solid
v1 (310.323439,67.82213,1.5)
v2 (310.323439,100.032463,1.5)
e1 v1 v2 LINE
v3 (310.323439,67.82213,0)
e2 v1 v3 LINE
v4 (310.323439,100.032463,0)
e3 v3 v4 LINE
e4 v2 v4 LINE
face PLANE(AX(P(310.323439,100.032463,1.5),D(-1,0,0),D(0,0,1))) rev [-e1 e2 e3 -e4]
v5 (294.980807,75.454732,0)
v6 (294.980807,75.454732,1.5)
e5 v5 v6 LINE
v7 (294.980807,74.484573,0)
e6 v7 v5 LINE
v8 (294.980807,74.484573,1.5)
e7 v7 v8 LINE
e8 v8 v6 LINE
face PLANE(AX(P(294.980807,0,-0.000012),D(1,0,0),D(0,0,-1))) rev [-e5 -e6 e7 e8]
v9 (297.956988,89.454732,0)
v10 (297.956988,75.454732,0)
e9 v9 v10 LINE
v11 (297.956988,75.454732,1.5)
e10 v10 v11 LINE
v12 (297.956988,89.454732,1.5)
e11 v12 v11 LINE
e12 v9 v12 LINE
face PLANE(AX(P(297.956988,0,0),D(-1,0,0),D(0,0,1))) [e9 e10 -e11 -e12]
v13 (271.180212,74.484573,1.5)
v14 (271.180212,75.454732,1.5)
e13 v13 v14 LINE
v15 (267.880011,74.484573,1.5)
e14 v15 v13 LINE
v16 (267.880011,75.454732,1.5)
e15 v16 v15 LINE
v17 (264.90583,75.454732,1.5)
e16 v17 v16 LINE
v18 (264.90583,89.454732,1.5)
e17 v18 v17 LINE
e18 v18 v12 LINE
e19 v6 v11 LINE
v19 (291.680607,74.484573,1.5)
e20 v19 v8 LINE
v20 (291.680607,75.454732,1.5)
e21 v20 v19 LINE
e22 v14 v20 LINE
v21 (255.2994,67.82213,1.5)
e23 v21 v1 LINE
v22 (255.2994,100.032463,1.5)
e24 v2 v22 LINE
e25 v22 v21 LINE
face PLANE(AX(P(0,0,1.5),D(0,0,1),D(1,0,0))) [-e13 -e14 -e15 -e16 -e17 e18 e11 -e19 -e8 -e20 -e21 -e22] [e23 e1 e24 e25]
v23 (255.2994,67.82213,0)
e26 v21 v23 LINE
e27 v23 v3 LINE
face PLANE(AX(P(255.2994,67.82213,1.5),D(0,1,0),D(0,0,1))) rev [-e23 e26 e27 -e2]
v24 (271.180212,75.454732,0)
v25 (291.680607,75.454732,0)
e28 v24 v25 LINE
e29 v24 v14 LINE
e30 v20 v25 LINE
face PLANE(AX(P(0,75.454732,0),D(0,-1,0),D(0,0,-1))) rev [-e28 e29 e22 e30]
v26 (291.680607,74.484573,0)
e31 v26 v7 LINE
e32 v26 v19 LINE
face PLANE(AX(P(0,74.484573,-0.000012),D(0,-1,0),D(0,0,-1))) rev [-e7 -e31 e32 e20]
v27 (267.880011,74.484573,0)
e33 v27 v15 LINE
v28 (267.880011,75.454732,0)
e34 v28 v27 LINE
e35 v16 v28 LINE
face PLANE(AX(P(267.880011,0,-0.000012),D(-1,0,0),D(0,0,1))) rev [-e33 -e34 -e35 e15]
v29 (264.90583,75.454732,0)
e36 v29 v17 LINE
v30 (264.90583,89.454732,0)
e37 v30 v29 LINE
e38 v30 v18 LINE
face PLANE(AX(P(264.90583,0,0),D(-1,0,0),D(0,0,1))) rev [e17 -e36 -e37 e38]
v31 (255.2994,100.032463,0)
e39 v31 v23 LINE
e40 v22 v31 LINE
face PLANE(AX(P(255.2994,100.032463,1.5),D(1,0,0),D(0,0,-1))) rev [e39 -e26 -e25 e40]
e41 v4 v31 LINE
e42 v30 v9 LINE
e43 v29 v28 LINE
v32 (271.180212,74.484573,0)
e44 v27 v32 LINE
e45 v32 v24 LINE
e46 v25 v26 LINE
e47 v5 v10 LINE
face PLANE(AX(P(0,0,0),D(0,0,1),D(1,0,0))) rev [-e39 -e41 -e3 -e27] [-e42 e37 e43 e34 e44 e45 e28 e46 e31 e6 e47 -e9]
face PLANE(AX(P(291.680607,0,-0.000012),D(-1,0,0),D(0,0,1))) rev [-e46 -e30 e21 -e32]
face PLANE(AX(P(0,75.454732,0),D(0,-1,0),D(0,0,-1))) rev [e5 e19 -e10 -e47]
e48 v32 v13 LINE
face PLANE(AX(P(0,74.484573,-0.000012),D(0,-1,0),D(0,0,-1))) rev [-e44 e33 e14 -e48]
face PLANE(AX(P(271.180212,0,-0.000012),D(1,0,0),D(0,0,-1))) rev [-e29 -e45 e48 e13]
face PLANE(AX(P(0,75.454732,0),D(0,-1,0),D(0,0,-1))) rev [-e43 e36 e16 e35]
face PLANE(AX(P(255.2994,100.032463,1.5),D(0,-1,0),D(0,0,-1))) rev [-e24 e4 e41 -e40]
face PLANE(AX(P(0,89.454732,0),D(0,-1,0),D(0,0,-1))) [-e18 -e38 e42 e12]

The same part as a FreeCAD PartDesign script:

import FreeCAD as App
import Part
import Sketcher

doc = App.newDocument("Part")
params = doc.addObject("Spreadsheet::Sheet", "Params")
for row, (alias, value) in enumerate([
    ("pad1_length", "1.5 mm"),
    ("sketch2_width", "14 mm"),
    ("pocket1_length", "1.5 mm"),
    ("sketch3_width", "14 mm"),
], start=1):
    params.set(f"A{row}", alias)
    params.set(f"B{row}", "=" + value)
    params.setAlias(f"B{row}", alias)

body = doc.addObject("PartDesign::Body", "Body")

sketch1 = body.newObject("Sketcher::SketchObject", "Sketch")
sketch1.AttachmentSupport = (doc.getObject("XY_Plane"), [""])
sketch1.MapMode = "FlatFace"
sketch1.addGeometry(Part.LineSegment(App.Vector(255, 100, 0), App.Vector(255, 68, 0)), False)
sketch1.addGeometry(Part.LineSegment(App.Vector(255, 68, 0), App.Vector(310, 68, 0)), False)
sketch1.addGeometry(Part.LineSegment(App.Vector(310, 68, 0), App.Vector(310, 100, 0)), False)
sketch1.addGeometry(Part.LineSegment(App.Vector(310, 100, 0), App.Vector(255, 100, 0)), False)
sketch1.addConstraint(Sketcher.Constraint("Coincident", 0, 2, 1, 1))
sketch1.addConstraint(Sketcher.Constraint("Coincident", 1, 2, 2, 1))
sketch1.addConstraint(Sketcher.Constraint("Coincident", 2, 2, 3, 1))
sketch1.addConstraint(Sketcher.Constraint("Coincident", 3, 2, 0, 1))
sketch1.addConstraint(Sketcher.Constraint("Vertical", 0))
sketch1.addConstraint(Sketcher.Constraint("Horizontal", 1))
sketch1.addConstraint(Sketcher.Constraint("Vertical", 2))
sketch1.addConstraint(Sketcher.Constraint("Horizontal", 3))
sketch1.addConstraint(Sketcher.Constraint("DistanceX", 1, 1, 1, 2, 55.024039))
sketch1.addConstraint(Sketcher.Constraint("DistanceX", -1, 1, 0, 2, 255.2994))
sketch1.addConstraint(Sketcher.Constraint("DistanceY", 0, 2, 0, 1, 32.210334))
sketch1.addConstraint(Sketcher.Constraint("DistanceY", -1, 1, 0, 2, 67.82213))
pad1 = body.newObject("PartDesign::Pad", "Pad")
pad1.Profile = sketch1
pad1.setExpression("Length", "Params.pad1_length")

sketch2 = body.newObject("Sketcher::SketchObject", "Sketch001")
sketch2.AttachmentSupport = (doc.getObject("XY_Plane"), [""])
sketch2.MapMode = "FlatFace"
sketch2.AttachmentOffset = App.Placement(App.Vector(0, 0, 1.5), App.Rotation())
sketch2.addGeometry(Part.LineSegment(App.Vector(265, 89, 0), App.Vector(265, 75, 0)), False)
sketch2.addGeometry(Part.LineSegment(App.Vector(265, 75, 0), App.Vector(279, 75, 0)), False)
sketch2.addGeometry(Part.LineSegment(App.Vector(279, 75, 0), App.Vector(279, 89, 0)), False)
sketch2.addGeometry(Part.LineSegment(App.Vector(279, 89, 0), App.Vector(265, 89, 0)), False)
sketch2.addGeometry(Part.LineSegment(App.Vector(284, 89, 0), App.Vector(284, 75, 0)), False)
sketch2.addGeometry(Part.LineSegment(App.Vector(284, 75, 0), App.Vector(298, 75, 0)), False)
sketch2.addGeometry(Part.LineSegment(App.Vector(298, 75, 0), App.Vector(298, 89, 0)), False)
sketch2.addGeometry(Part.LineSegment(App.Vector(298, 89, 0), App.Vector(284, 89, 0)), False)
sketch2.addConstraint(Sketcher.Constraint("Coincident", 0, 2, 1, 1))
sketch2.addConstraint(Sketcher.Constraint("Coincident", 1, 2, 2, 1))
sketch2.addConstraint(Sketcher.Constraint("Coincident", 2, 2, 3, 1))
sketch2.addConstraint(Sketcher.Constraint("Coincident", 3, 2, 0, 1))
sketch2.addConstraint(Sketcher.Constraint("Coincident", 4, 2, 5, 1))
sketch2.addConstraint(Sketcher.Constraint("Coincident", 5, 2, 6, 1))
sketch2.addConstraint(Sketcher.Constraint("Coincident", 6, 2, 7, 1))
sketch2.addConstraint(Sketcher.Constraint("Coincident", 7, 2, 4, 1))
sketch2.addConstraint(Sketcher.Constraint("Vertical", 0))
sketch2.addConstraint(Sketcher.Constraint("Horizontal", 1))
sketch2.addConstraint(Sketcher.Constraint("Vertical", 2))
sketch2.addConstraint(Sketcher.Constraint("Horizontal", 3))
sketch2.addConstraint(Sketcher.Constraint("Vertical", 4))
sketch2.addConstraint(Sketcher.Constraint("Horizontal", 5))
sketch2.addConstraint(Sketcher.Constraint("Vertical", 6))
sketch2.addConstraint(Sketcher.Constraint("Horizontal", 7))
sketch2.addConstraint(Sketcher.Constraint("Horizontal", 1, 2, 4, 2))
sketch2.addConstraint(Sketcher.Constraint("Horizontal", 3, 2, 6, 2))
sketch2.addConstraint(Sketcher.Constraint("Equal", 3, 5))
sketch2.addConstraint(Sketcher.Constraint("Equal", 7, 0))
sketch2.addConstraint(Sketcher.Constraint("DistanceX", 1, 1, 1, 2, 14.0))
sketch2.addConstraint(Sketcher.Constraint("DistanceX", -1, 1, 0, 2, 264.90583))
sketch2.addConstraint(Sketcher.Constraint("DistanceX", -1, 1, 4, 2, 283.956988))
sketch2.addConstraint(Sketcher.Constraint("DistanceY", -1, 1, 0, 2, 75.454732))
sketch2.setExpression("Constraints[20]", "Params.sketch2_width")
pocket1 = body.newObject("PartDesign::Pocket", "Pocket")
pocket1.Profile = sketch2
pocket1.setExpression("Length", "Params.pocket1_length")

sketch3 = body.newObject("Sketcher::SketchObject", "Sketch002")
sketch3.AttachmentSupport = (doc.getObject("XY_Plane"), [""])
sketch3.MapMode = "FlatFace"
sketch3.addGeometry(Part.LineSegment(App.Vector(272.9, 84.8, 0), App.Vector(272.9, 88, 0)), False)
sketch3.addGeometry(Part.LineSegment(App.Vector(272.9, 88, 0), App.Vector(266.2, 88, 0)), False)
sketch3.addGeometry(Part.LineSegment(App.Vector(266.2, 88, 0), App.Vector(266.2, 84.8, 0)), False)
sketch3.addGeometry(Part.LineSegment(App.Vector(266.2, 84.8, 0), App.Vector(265.3, 84.8, 0)), False)
sketch3.addGeometry(Part.LineSegment(App.Vector(265.3, 84.8, 0), App.Vector(265.3, 82, 0)), False)
sketch3.addGeometry(Part.LineSegment(App.Vector(265.3, 82, 0), App.Vector(266.2, 82, 0)), False)
sketch3.addGeometry(Part.LineSegment(App.Vector(266.2, 82, 0), App.Vector(266.2, 75.7, 0)), False)
sketch3.addGeometry(Part.LineSegment(App.Vector(266.2, 75.7, 0), App.Vector(267.9, 75.7, 0)), False)
sketch3.addGeometry(Part.LineSegment(App.Vector(267.9, 75.7, 0), App.Vector(267.9, 74.5, 0)), False)
sketch3.addGeometry(Part.LineSegment(App.Vector(267.9, 74.5, 0), App.Vector(271.2, 74.5, 0)), False)
sketch3.addGeometry(Part.LineSegment(App.Vector(271.2, 74.5, 0), App.Vector(271.2, 75.7, 0)), False)
sketch3.addGeometry(Part.LineSegment(App.Vector(271.2, 75.7, 0), App.Vector(272.9, 75.7, 0)), False)
sketch3.addGeometry(Part.LineSegment(App.Vector(272.9, 75.7, 0), App.Vector(272.9, 80.2, 0)), False)
sketch3.addGeometry(Part.LineSegment(App.Vector(272.9, 80.2, 0), App.Vector(274.4, 80.2, 0)), False)
sketch3.addGeometry(Part.LineSegment(App.Vector(274.4, 80.2, 0), App.Vector(274.4, 75.5, 0)), False)
sketch3.addGeometry(Part.LineSegment(App.Vector(274.4, 75.5, 0), App.Vector(288.4, 75.5, 0)), False)
sketch3.addGeometry(Part.LineSegment(App.Vector(288.4, 75.5, 0), App.Vector(288.4, 80.2, 0)), False)
sketch3.addGeometry(Part.LineSegment(App.Vector(288.4, 80.2, 0), App.Vector(290, 80.2, 0)), False)
sketch3.addGeometry(Part.LineSegment(App.Vector(290, 80.2, 0), App.Vector(290, 75.7, 0)), False)
sketch3.addGeometry(Part.LineSegment(App.Vector(290, 75.7, 0), App.Vector(291.7, 75.7, 0)), False)
sketch3.addGeometry(Part.LineSegment(App.Vector(291.7, 75.7, 0), App.Vector(291.7, 74.5, 0)), False)
sketch3.addGeometry(Part.LineSegment(App.Vector(291.7, 74.5, 0), App.Vector(295, 74.5, 0)), False)
sketch3.addGeometry(Part.LineSegment(App.Vector(295, 74.5, 0), App.Vector(295, 75.7, 0)), False)
sketch3.addGeometry(Part.LineSegment(App.Vector(295, 75.7, 0), App.Vector(296.7, 75.7, 0)), False)
sketch3.addGeometry(Part.LineSegment(App.Vector(296.7, 75.7, 0), App.Vector(296.7, 82, 0)), False)
sketch3.addGeometry(Part.LineSegment(App.Vector(296.7, 82, 0), App.Vector(297.5, 82, 0)), False)
sketch3.addGeometry(Part.LineSegment(App.Vector(297.5, 82, 0), App.Vector(297.5, 84.8, 0)), False)
sketch3.addGeometry(Part.LineSegment(App.Vector(297.5, 84.8, 0), App.Vector(296.7, 84.8, 0)), False)
sketch3.addGeometry(Part.LineSegment(App.Vector(296.7, 84.8, 0), App.Vector(296.7, 88, 0)), False)
sketch3.addGeometry(Part.LineSegment(App.Vector(296.7, 88, 0), App.Vector(290, 88, 0)), False)
sketch3.addGeometry(Part.LineSegment(App.Vector(290, 88, 0), App.Vector(290, 84.8, 0)), False)
sketch3.addGeometry(Part.LineSegment(App.Vector(290, 84.8, 0), App.Vector(288.4, 84.8, 0)), False)
sketch3.addGeometry(Part.LineSegment(App.Vector(288.4, 84.8, 0), App.Vector(288.4, 89.5, 0)), False)
sketch3.addGeometry(Part.LineSegment(App.Vector(288.4, 89.5, 0), App.Vector(274.4, 89.5, 0)), False)
sketch3.addGeometry(Part.LineSegment(App.Vector(274.4, 89.5, 0), App.Vector(274.4, 84.8, 0)), False)
sketch3.addGeometry(Part.LineSegment(App.Vector(274.4, 84.8, 0), App.Vector(272.9, 84.8, 0)), False)
sketch3.addConstraint(Sketcher.Constraint("Coincident", 0, 2, 1, 1))
sketch3.addConstraint(Sketcher.Constraint("Coincident", 1, 2, 2, 1))
sketch3.addConstraint(Sketcher.Constraint("Coincident", 2, 2, 3, 1))
sketch3.addConstraint(Sketcher.Constraint("Coincident", 3, 2, 4, 1))
sketch3.addConstraint(Sketcher.Constraint("Coincident", 4, 2, 5, 1))
sketch3.addConstraint(Sketcher.Constraint("Coincident", 5, 2, 6, 1))
sketch3.addConstraint(Sketcher.Constraint("Coincident", 6, 2, 7, 1))
sketch3.addConstraint(Sketcher.Constraint("Coincident", 7, 2, 8, 1))
sketch3.addConstraint(Sketcher.Constraint("Coincident", 8, 2, 9, 1))
sketch3.addConstraint(Sketcher.Constraint("Coincident", 9, 2, 10, 1))
sketch3.addConstraint(Sketcher.Constraint("Coincident", 10, 2, 11, 1))
sketch3.addConstraint(Sketcher.Constraint("Coincident", 11, 2, 12, 1))
sketch3.addConstraint(Sketcher.Constraint("Coincident", 12, 2, 13, 1))
sketch3.addConstraint(Sketcher.Constraint("Coincident", 13, 2, 14, 1))
sketch3.addConstraint(Sketcher.Constraint("Coincident", 14, 2, 15, 1))
sketch3.addConstraint(Sketcher.Constraint("Coincident", 15, 2, 16, 1))
sketch3.addConstraint(Sketcher.Constraint("Coincident", 16, 2, 17, 1))
sketch3.addConstraint(Sketcher.Constraint("Coincident", 17, 2, 18, 1))
sketch3.addConstraint(Sketcher.Constraint("Coincident", 18, 2, 19, 1))
sketch3.addConstraint(Sketcher.Constraint("Coincident", 19, 2, 20, 1))
sketch3.addConstraint(Sketcher.Constraint("Coincident", 20, 2, 21, 1))
sketch3.addConstraint(Sketcher.Constraint("Coincident", 21, 2, 22, 1))
sketch3.addConstraint(Sketcher.Constraint("Coincident", 22, 2, 23, 1))
sketch3.addConstraint(Sketcher.Constraint("Coincident", 23, 2, 24, 1))
sketch3.addConstraint(Sketcher.Constraint("Coincident", 24, 2, 25, 1))
sketch3.addConstraint(Sketcher.Constraint("Coincident", 25, 2, 26, 1))
sketch3.addConstraint(Sketcher.Constraint("Coincident", 26, 2, 27, 1))
sketch3.addConstraint(Sketcher.Constraint("Coincident", 27, 2, 28, 1))
sketch3.addConstraint(Sketcher.Constraint("Coincident", 28, 2, 29, 1))
sketch3.addConstraint(Sketcher.Constraint("Coincident", 29, 2, 30, 1))
sketch3.addConstraint(Sketcher.Constraint("Coincident", 30, 2, 31, 1))
sketch3.addConstraint(Sketcher.Constraint("Coincident", 31, 2, 32, 1))
sketch3.addConstraint(Sketcher.Constraint("Coincident", 32, 2, 33, 1))
sketch3.addConstraint(Sketcher.Constraint("Coincident", 33, 2, 34, 1))
sketch3.addConstraint(Sketcher.Constraint("Coincident", 34, 2, 35, 1))
sketch3.addConstraint(Sketcher.Constraint("Coincident", 35, 2, 0, 1))
sketch3.addConstraint(Sketcher.Constraint("Vertical", 0))
sketch3.addConstraint(Sketcher.Constraint("Horizontal", 1))
sketch3.addConstraint(Sketcher.Constraint("Vertical", 2))
sketch3.addConstraint(Sketcher.Constraint("Horizontal", 3))
sketch3.addConstraint(Sketcher.Constraint("Vertical", 4))
sketch3.addConstraint(Sketcher.Constraint("Horizontal", 5))
sketch3.addConstraint(Sketcher.Constraint("Vertical", 6))
sketch3.addConstraint(Sketcher.Constraint("Horizontal", 7))
sketch3.addConstraint(Sketcher.Constraint("Vertical", 8))
sketch3.addConstraint(Sketcher.Constraint("Horizontal", 9))
sketch3.addConstraint(Sketcher.Constraint("Vertical", 10))
sketch3.addConstraint(Sketcher.Constraint("Horizontal", 11))
sketch3.addConstraint(Sketcher.Constraint("Vertical", 12))
sketch3.addConstraint(Sketcher.Constraint("Horizontal", 13))
sketch3.addConstraint(Sketcher.Constraint("Vertical", 14))
sketch3.addConstraint(Sketcher.Constraint("Horizontal", 15))
sketch3.addConstraint(Sketcher.Constraint("Vertical", 16))
sketch3.addConstraint(Sketcher.Constraint("Horizontal", 17))
sketch3.addConstraint(Sketcher.Constraint("Vertical", 18))
sketch3.addConstraint(Sketcher.Constraint("Horizontal", 19))
sketch3.addConstraint(Sketcher.Constraint("Vertical", 20))
sketch3.addConstraint(Sketcher.Constraint("Horizontal", 21))
sketch3.addConstraint(Sketcher.Constraint("Vertical", 22))
sketch3.addConstraint(Sketcher.Constraint("Horizontal", 23))
sketch3.addConstraint(Sketcher.Constraint("Vertical", 24))
sketch3.addConstraint(Sketcher.Constraint("Horizontal", 25))
sketch3.addConstraint(Sketcher.Constraint("Vertical", 26))
sketch3.addConstraint(Sketcher.Constraint("Horizontal", 27))
sketch3.addConstraint(Sketcher.Constraint("Vertical", 28))
sketch3.addConstraint(Sketcher.Constraint("Horizontal", 29))
sketch3.addConstraint(Sketcher.Constraint("Vertical", 30))
sketch3.addConstraint(Sketcher.Constraint("Horizontal", 31))
sketch3.addConstraint(Sketcher.Constraint("Vertical", 32))
sketch3.addConstraint(Sketcher.Constraint("Horizontal", 33))
sketch3.addConstraint(Sketcher.Constraint("Vertical", 34))
sketch3.addConstraint(Sketcher.Constraint("Horizontal", 35))
sketch3.addConstraint(Sketcher.Constraint("Horizontal", 7, 2, 10, 2))
sketch3.addConstraint(Sketcher.Constraint("Horizontal", 13, 2, 16, 2))
sketch3.addConstraint(Sketcher.Constraint("Horizontal", 11, 2, 18, 2))
sketch3.addConstraint(Sketcher.Constraint("Horizontal", 9, 2, 20, 2))
sketch3.addConstraint(Sketcher.Constraint("Horizontal", 19, 2, 22, 2))
sketch3.addConstraint(Sketcher.Constraint("Horizontal", 5, 2, 24, 2))
sketch3.addConstraint(Sketcher.Constraint("Horizontal", 27, 2, 30, 2))
sketch3.addConstraint(Sketcher.Constraint("Horizontal", 3, 2, 34, 2))
sketch3.addConstraint(Sketcher.Constraint("Vertical", 2, 2, 5, 2))
sketch3.addConstraint(Sketcher.Constraint("Vertical", 0, 2, 11, 2))
sketch3.addConstraint(Sketcher.Constraint("Vertical", 24, 2, 27, 2))
sketch3.addConstraint(Sketcher.Constraint("Vertical", 18, 2, 29, 2))
sketch3.addConstraint(Sketcher.Constraint("Vertical", 16, 2, 31, 2))
sketch3.addConstraint(Sketcher.Constraint("Vertical", 14, 2, 33, 2))
sketch3.addConstraint(Sketcher.Constraint("Equal", 13, 17))
sketch3.addConstraint(Sketcher.Constraint("Equal", 7, 19))
sketch3.addConstraint(Sketcher.Constraint("Equal", 9, 21))
sketch3.addConstraint(Sketcher.Constraint("Equal", 11, 23))
sketch3.addConstraint(Sketcher.Constraint("Equal", 2, 28))
sketch3.addConstraint(Sketcher.Constraint("DistanceX", 15, 1, 15, 2, 14.0))
sketch3.addConstraint(Sketcher.Constraint("DistanceX", 9, 1, 9, 2, 3.300201))
sketch3.addConstraint(Sketcher.Constraint("DistanceX", 1, 2, 1, 1, 6.75041))
sketch3.addConstraint(Sketcher.Constraint("DistanceX", 3, 2, 3, 1, 0.82505))
sketch3.addConstraint(Sketcher.Constraint("DistanceX", 25, 1, 25, 2, 0.82405))
sketch3.addConstraint(Sketcher.Constraint("DistanceY", 4, 2, 4, 1, 2.80017))
sketch3.addConstraint(Sketcher.Constraint("DistanceY", 6, 2, 6, 1, 6.270681))
sketch3.addConstraint(Sketcher.Constraint("DistanceY", 12, 1, 12, 2, 4.470672))
sketch3.addConstraint(Sketcher.Constraint("DistanceY", 26, 1, 26, 2, 2.800019))
sketch3.addConstraint(Sketcher.Constraint("DistanceX", 7, 2, 13, 2, 6.551398))
sketch3.addConstraint(Sketcher.Constraint("DistanceX", 15, 2, 21, 2, 6.549398))
sketch3.addConstraint(Sketcher.Constraint("DistanceY", 0, 1, 0, 2, 3.230196))
sketch3.addConstraint(Sketcher.Constraint("DistanceY", 8, 2, 8, 1, 1.200173))
sketch3.addConstraint(Sketcher.Constraint("DistanceY", 14, 2, 14, 1, 4.700686))
sketch3.addConstraint(Sketcher.Constraint("DistanceY", 32, 1, 32, 2, 4.699286))
sketch3.addConstraint(Sketcher.Constraint("DistanceX", -1, 1, 7, 2, 267.880011))
sketch3.addConstraint(Sketcher.Constraint("DistanceY", -1, 1, 12, 2, 80.155418))
sketch3.setExpression("Constraints[91]", "Params.sketch3_width")
pocket2 = body.newObject("PartDesign::Pocket", "Pocket001")
pocket2.Profile = sketch3
pocket2.Type = "ThroughAll"
pocket2.Midplane = True

doc.recompute()
